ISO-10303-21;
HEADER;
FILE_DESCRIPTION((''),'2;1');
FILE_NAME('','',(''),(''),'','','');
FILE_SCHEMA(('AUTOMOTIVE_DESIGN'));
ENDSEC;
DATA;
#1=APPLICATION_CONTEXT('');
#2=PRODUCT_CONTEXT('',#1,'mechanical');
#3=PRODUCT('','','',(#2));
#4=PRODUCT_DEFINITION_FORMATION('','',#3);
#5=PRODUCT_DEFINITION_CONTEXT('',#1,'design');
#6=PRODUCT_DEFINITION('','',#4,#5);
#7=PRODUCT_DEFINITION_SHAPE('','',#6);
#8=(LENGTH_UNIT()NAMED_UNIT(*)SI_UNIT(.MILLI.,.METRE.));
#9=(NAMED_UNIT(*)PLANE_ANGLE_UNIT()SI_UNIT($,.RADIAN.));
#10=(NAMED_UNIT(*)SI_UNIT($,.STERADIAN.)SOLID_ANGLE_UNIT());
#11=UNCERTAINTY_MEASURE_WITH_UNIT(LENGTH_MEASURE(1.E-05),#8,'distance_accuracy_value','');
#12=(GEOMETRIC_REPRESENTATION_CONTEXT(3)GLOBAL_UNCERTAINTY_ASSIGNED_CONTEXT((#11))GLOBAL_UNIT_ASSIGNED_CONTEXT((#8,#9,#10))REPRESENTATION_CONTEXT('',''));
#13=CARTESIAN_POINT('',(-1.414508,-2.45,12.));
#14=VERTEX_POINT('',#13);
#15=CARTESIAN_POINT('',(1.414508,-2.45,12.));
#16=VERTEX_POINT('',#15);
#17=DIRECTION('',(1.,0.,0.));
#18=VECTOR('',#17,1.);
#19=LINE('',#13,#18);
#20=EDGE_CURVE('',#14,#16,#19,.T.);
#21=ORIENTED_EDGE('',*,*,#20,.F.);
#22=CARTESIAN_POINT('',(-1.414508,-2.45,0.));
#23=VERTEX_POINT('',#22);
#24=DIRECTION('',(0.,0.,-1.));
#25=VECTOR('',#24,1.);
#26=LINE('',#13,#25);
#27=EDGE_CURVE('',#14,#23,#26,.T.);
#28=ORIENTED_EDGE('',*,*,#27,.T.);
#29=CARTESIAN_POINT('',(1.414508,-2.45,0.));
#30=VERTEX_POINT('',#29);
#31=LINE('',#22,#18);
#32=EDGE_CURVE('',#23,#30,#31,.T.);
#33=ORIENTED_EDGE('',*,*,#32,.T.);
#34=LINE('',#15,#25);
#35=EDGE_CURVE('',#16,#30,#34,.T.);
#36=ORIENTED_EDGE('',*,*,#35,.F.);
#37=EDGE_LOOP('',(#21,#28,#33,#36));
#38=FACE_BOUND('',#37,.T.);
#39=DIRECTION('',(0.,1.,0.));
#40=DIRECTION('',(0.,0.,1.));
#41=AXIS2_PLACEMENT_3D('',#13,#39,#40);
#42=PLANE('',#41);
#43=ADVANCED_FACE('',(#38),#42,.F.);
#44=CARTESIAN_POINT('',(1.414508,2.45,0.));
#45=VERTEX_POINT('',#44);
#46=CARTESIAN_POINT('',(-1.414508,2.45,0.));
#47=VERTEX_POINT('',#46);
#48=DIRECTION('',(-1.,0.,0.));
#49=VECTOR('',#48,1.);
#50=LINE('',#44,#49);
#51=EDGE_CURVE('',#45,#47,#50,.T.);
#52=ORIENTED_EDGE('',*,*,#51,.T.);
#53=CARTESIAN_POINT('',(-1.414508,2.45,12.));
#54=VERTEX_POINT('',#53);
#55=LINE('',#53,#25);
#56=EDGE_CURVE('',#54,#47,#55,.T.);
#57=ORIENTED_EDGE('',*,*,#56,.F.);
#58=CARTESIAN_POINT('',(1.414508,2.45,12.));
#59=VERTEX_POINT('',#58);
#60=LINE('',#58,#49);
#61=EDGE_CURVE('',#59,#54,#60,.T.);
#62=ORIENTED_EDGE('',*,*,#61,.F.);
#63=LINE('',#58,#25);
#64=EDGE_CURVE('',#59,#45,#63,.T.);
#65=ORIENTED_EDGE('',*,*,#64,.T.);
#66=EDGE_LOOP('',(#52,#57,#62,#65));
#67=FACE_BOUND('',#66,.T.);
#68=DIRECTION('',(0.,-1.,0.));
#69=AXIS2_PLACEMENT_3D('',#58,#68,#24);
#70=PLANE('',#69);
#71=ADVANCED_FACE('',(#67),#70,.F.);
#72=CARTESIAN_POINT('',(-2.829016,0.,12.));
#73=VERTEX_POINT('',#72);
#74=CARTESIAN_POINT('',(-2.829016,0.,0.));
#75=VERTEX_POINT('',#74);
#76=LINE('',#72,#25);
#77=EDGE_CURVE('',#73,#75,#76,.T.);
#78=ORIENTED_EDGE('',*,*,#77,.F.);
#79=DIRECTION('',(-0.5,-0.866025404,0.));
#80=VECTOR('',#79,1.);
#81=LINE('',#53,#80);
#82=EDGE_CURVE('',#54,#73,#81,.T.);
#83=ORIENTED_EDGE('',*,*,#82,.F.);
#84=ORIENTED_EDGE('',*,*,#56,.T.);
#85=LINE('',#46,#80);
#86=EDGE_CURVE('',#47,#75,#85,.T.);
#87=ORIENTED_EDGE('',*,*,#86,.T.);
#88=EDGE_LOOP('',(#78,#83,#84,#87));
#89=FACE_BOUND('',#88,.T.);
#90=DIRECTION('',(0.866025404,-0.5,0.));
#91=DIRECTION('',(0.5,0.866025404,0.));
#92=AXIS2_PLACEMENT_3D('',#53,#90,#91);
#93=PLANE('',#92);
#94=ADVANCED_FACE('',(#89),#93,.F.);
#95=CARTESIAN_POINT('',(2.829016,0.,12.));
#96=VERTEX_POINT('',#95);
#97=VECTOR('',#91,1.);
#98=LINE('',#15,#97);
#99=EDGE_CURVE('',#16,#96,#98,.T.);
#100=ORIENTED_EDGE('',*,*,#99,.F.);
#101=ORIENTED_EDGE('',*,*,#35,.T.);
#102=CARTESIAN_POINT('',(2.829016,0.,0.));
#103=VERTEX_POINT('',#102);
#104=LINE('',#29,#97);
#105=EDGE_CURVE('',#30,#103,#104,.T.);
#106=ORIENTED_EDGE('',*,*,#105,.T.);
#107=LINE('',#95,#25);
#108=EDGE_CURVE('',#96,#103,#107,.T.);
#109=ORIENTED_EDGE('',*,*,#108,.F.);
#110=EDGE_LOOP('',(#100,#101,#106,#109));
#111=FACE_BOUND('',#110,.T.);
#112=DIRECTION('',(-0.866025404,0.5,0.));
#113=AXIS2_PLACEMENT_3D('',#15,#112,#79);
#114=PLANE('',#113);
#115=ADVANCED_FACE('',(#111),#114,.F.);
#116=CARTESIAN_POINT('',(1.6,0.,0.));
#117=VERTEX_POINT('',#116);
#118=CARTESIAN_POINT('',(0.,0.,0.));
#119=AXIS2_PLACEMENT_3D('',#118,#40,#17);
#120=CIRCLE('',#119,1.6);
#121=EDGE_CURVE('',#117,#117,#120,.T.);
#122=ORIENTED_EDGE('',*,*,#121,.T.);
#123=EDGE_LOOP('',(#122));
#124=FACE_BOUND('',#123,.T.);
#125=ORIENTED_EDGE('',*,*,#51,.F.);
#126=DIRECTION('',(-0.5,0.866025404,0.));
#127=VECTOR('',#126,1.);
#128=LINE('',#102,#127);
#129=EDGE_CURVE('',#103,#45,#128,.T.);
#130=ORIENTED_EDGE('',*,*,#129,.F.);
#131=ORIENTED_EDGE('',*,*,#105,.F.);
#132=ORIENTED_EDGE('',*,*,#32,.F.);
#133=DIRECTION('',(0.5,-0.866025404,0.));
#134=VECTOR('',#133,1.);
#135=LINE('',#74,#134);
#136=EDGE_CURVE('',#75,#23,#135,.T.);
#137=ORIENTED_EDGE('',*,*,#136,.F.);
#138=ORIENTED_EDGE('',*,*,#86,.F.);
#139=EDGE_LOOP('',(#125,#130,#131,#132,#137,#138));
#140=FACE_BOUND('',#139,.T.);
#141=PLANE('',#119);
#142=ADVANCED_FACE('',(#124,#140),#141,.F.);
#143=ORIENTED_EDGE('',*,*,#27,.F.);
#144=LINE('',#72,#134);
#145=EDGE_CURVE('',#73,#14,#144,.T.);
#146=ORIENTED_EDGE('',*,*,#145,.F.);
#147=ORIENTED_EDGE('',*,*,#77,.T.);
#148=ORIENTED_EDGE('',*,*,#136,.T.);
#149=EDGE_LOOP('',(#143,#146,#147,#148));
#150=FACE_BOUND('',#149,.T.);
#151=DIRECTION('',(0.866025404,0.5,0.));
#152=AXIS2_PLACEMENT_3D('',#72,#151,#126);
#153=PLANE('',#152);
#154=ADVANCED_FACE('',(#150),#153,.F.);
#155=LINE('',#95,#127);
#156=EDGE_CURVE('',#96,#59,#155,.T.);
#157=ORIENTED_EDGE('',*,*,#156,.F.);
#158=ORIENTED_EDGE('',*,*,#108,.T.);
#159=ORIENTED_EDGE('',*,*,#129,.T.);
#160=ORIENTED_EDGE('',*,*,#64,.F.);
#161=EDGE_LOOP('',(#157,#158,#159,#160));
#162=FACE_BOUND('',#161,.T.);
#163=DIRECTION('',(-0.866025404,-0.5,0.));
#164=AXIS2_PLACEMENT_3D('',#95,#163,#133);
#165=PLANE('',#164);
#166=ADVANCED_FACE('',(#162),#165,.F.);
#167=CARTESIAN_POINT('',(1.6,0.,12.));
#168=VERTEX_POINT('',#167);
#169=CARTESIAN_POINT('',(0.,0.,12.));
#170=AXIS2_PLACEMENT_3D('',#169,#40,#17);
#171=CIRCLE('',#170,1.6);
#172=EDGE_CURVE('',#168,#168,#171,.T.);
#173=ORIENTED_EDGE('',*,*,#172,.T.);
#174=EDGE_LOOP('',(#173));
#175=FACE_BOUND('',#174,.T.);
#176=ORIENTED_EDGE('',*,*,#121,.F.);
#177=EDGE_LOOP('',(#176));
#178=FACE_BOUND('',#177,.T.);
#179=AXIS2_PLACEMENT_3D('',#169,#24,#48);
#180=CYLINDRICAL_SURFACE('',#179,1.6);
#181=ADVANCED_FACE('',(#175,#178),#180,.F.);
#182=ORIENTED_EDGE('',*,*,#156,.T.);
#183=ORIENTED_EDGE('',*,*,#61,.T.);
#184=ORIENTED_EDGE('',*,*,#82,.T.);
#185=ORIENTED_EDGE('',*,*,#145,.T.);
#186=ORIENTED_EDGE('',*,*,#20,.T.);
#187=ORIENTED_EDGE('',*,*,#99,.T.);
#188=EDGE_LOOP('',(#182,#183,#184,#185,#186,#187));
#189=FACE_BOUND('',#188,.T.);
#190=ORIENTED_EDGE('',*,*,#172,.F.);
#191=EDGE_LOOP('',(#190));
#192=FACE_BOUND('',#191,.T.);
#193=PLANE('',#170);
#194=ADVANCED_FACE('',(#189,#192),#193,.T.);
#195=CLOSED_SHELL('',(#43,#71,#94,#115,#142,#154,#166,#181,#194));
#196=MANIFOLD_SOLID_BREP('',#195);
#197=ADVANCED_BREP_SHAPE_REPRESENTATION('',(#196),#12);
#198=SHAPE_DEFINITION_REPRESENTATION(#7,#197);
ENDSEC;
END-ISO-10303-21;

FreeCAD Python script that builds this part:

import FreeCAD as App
import Part
import Sketcher
from FreeCAD import Vector
Q = App.Units.Quantity

doc = App.newDocument("Part")
body = doc.addObject("PartDesign::Body", "Body")

sketch1 = doc.addObject("Sketcher::SketchObject", "Sketch")
body.addObject(sketch1)
sketch1.AttachmentSupport = (doc.XY_Plane, [""])
sketch1.MapMode = "FlatFace"
sketch1.addGeometry([
    Part.LineSegment(Vector(2.8, 0, 0), Vector(1.4, 2.5, 0)),
    Part.LineSegment(Vector(1.4, 2.5, 0), Vector(-1.4, 2.5, 0)),
    Part.LineSegment(Vector(-1.4, 2.5, 0), Vector(-2.8, 0, 0)),
    Part.LineSegment(Vector(-2.8, 0, 0), Vector(-1.4, -2.5, 0)),
    Part.LineSegment(Vector(-1.4, -2.5, 0), Vector(1.4, -2.5, 0)),
    Part.LineSegment(Vector(1.4, -2.5, 0), Vector(2.8, 0, 0)),
    Part.Circle(Vector(0, 0, 0), Vector(0, 0, 1), 1.6),
], False)
sketch1.addConstraint([
    Sketcher.Constraint("Coincident", 0, 2, 1, 1),
    Sketcher.Constraint("Coincident", 1, 2, 2, 1),
    Sketcher.Constraint("Coincident", 2, 2, 3, 1),
    Sketcher.Constraint("Coincident", 3, 2, 4, 1),
    Sketcher.Constraint("Coincident", 4, 2, 5, 1),
    Sketcher.Constraint("Coincident", 5, 2, 0, 1),
    Sketcher.Constraint("Horizontal", 1),
    Sketcher.Constraint("Horizontal", 4),
    Sketcher.Constraint("Coincident", 6, 3, -1, 1),
    Sketcher.Constraint("Symmetric", 0, 2, 3, 2, -1, 1),
    Sketcher.Constraint("Symmetric", 2, 2, 5, 2, -1, 1),
    Sketcher.Constraint("PointOnObject", 2, 2, -1),
    Sketcher.Constraint("Parallel", 2, 5),
    Sketcher.Constraint("Vertical", 1, 2, 3, 2),
    Sketcher.Constraint("Diameter", 6, 3.2),
    Sketcher.Constraint("Angle", 0, Q("120 deg")),
    Sketcher.Constraint("DistanceY", 3, 2, 1, 2, 4.9),
    Sketcher.Constraint("DistanceX", 1, 2, 1, 1, 2.829016),
])
pad1 = doc.addObject("PartDesign::Pad", "Pad")
body.addObject(pad1)
pad1.Profile = sketch1
pad1.Length = 12

doc.recompute()
